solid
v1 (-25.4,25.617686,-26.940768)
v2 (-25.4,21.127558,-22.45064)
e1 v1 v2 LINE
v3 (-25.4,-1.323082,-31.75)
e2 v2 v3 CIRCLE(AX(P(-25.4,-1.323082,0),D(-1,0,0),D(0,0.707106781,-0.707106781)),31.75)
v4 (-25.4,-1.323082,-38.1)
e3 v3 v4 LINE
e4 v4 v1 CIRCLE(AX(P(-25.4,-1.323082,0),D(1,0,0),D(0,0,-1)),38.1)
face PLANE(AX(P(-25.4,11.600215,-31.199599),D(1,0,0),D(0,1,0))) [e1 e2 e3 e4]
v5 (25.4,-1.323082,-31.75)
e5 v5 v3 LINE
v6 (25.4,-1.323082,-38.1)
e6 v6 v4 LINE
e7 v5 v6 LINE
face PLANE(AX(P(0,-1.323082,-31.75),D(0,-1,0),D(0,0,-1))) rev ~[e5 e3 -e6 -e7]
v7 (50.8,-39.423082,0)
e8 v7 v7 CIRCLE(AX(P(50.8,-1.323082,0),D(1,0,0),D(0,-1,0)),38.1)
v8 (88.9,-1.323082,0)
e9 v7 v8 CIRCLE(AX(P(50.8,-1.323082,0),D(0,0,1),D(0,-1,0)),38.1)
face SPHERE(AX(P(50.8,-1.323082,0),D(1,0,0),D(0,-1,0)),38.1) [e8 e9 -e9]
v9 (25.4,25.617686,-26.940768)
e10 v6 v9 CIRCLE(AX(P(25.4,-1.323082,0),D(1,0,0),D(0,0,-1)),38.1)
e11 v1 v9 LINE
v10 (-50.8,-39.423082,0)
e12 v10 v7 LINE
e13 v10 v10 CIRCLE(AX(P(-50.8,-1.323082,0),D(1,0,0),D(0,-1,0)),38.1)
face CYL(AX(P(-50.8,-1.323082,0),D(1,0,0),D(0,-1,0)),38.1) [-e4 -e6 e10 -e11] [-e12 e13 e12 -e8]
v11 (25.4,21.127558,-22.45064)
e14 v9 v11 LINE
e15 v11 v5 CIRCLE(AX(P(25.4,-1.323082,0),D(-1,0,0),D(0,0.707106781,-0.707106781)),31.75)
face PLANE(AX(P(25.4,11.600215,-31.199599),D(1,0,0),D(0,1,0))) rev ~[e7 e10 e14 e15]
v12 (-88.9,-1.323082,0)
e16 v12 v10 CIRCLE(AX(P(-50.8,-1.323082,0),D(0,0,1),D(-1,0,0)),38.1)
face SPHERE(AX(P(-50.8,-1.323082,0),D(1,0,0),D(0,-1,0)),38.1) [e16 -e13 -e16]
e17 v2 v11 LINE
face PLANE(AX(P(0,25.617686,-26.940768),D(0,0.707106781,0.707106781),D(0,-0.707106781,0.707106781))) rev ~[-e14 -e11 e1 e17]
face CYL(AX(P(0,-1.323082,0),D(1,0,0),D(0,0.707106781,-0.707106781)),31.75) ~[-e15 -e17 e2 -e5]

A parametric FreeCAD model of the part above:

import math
import FreeCAD as App
import Part
import Sketcher

V = App.Vector
Q = App.Units.Quantity

doc = App.newDocument("Part")
body = doc.addObject("PartDesign::Body", "Body")

# Sketch on XY plane
sketch1 = body.newObject("Sketcher::SketchObject", "Sketch")
sketch1.AttachmentSupport = (doc.getObject("XY_Plane"), [""])
sketch1.MapMode = "FlatFace"
sketch1.addGeometry([
    Part.LineSegment(V(88.9, -1.323082, 0), V(-88.9, -1.323082, 0)),
    Part.ArcOfCircle(Part.Circle(V(-50.8, -1.323082, 0), V(0, 0, 1), 38.1), math.radians(180), math.radians(270)),
    Part.LineSegment(V(-50.8, -39.423082, 0), V(50.8, -39.423082, 0)),
    Part.ArcOfCircle(Part.Circle(V(50.8, -1.323082, 0), V(0, 0, 1), 38.1), math.radians(-90), math.radians(0)),
], False)
sketch1.addGeometry(Part.LineSegment(V(-88.9, -1.323082, 0), V(88.9, -1.323082, 0)), True)  # axis
sketch1.addConstraint([
    Sketcher.Constraint("Coincident", 0, 2, 1, 1),
    Sketcher.Constraint("Tangent", 1, 2, 2, 1),
    Sketcher.Constraint("Tangent", 2, 2, 3, 1),
    Sketcher.Constraint("Coincident", 3, 2, 0, 1),
    Sketcher.Constraint("Horizontal", 0),
    Sketcher.Constraint("Horizontal", 2),
    Sketcher.Constraint("Horizontal", 4),
    Sketcher.Constraint("Coincident", 4, 1, 0, 2),
    Sketcher.Constraint("Equal", 1, 3),
    Sketcher.Constraint("Horizontal", 3, 3, 0, 2),
    Sketcher.Constraint("Equal", 0, 4),
    Sketcher.Constraint("Radius", 1, Q("1.5 in")),
    Sketcher.Constraint("DistanceX", 0, 2, 0, 1, Q("7 in")),
    Sketcher.Constraint("DistanceX", 1, 3, -1, 1, Q("2 in")),
    Sketcher.Constraint("DistanceY", 1, 3, -1, 1, 1.323082),
])
revolution = body.newObject("PartDesign::Revolution", "Revolution")
revolution.Profile = sketch1
revolution.ReferenceAxis = (sketch1, ["Axis0"])
revolution.Angle = 360

# Sketch on YZ plane
sketch2 = body.newObject("Sketcher::SketchObject", "Sketch001")
sketch2.AttachmentSupport = (doc.getObject("YZ_Plane"), [""])
sketch2.MapMode = "FlatFace"
sketch2.addGeometry([
    Part.ArcOfCircle(Part.Circle(V(-1.323082, 0, 0), V(0, 0, 1), 38.1), math.radians(-90), math.radians(-45)),
    Part.LineSegment(V(25.617686, -26.940768, 0), V(21.127558, -22.45064, 0)),
    Part.ArcOfCircle(Part.Circle(V(-1.323082, 0, 0), V(0, 0, 1), 31.75), math.radians(-90), math.radians(-45)),
    Part.LineSegment(V(-1.323082, -31.75, 0), V(-1.323082, -38.1, 0)),
], False)
sketch2.addConstraint([
    Sketcher.Constraint("Coincident", 0, 2, 1, 1),
    Sketcher.Constraint("Coincident", 1, 2, 2, 2),
    Sketcher.Constraint("Coincident", 2, 1, 3, 1),
    Sketcher.Constraint("Coincident", 3, 2, 0, 1),
    Sketcher.Constraint("Vertical", 3),
    Sketcher.Constraint("Coincident", 2, 3, 0, 3),
    Sketcher.Constraint("PointOnObject", 0, 3, -1),
    Sketcher.Constraint("Vertical", 0, 3, 2, 1),
    Sketcher.Constraint("Radius", 0, Q("1.5 in")),
    Sketcher.Constraint("Radius", 2, Q("1.25 in")),
    Sketcher.Constraint("Angle", 1, Q("135 deg")),
    Sketcher.Constraint("DistanceY", 0, 2, -1, 1, 26.940768),
    Sketcher.Constraint("DistanceX", -1, 1, 1, 2, 21.127558),
])
pocket1 = body.newObject("PartDesign::Pocket", "Pocket")
pocket1.Profile = sketch2
pocket1.Length = Q("2 in")
pocket1.Midplane = True

doc.recompute()
